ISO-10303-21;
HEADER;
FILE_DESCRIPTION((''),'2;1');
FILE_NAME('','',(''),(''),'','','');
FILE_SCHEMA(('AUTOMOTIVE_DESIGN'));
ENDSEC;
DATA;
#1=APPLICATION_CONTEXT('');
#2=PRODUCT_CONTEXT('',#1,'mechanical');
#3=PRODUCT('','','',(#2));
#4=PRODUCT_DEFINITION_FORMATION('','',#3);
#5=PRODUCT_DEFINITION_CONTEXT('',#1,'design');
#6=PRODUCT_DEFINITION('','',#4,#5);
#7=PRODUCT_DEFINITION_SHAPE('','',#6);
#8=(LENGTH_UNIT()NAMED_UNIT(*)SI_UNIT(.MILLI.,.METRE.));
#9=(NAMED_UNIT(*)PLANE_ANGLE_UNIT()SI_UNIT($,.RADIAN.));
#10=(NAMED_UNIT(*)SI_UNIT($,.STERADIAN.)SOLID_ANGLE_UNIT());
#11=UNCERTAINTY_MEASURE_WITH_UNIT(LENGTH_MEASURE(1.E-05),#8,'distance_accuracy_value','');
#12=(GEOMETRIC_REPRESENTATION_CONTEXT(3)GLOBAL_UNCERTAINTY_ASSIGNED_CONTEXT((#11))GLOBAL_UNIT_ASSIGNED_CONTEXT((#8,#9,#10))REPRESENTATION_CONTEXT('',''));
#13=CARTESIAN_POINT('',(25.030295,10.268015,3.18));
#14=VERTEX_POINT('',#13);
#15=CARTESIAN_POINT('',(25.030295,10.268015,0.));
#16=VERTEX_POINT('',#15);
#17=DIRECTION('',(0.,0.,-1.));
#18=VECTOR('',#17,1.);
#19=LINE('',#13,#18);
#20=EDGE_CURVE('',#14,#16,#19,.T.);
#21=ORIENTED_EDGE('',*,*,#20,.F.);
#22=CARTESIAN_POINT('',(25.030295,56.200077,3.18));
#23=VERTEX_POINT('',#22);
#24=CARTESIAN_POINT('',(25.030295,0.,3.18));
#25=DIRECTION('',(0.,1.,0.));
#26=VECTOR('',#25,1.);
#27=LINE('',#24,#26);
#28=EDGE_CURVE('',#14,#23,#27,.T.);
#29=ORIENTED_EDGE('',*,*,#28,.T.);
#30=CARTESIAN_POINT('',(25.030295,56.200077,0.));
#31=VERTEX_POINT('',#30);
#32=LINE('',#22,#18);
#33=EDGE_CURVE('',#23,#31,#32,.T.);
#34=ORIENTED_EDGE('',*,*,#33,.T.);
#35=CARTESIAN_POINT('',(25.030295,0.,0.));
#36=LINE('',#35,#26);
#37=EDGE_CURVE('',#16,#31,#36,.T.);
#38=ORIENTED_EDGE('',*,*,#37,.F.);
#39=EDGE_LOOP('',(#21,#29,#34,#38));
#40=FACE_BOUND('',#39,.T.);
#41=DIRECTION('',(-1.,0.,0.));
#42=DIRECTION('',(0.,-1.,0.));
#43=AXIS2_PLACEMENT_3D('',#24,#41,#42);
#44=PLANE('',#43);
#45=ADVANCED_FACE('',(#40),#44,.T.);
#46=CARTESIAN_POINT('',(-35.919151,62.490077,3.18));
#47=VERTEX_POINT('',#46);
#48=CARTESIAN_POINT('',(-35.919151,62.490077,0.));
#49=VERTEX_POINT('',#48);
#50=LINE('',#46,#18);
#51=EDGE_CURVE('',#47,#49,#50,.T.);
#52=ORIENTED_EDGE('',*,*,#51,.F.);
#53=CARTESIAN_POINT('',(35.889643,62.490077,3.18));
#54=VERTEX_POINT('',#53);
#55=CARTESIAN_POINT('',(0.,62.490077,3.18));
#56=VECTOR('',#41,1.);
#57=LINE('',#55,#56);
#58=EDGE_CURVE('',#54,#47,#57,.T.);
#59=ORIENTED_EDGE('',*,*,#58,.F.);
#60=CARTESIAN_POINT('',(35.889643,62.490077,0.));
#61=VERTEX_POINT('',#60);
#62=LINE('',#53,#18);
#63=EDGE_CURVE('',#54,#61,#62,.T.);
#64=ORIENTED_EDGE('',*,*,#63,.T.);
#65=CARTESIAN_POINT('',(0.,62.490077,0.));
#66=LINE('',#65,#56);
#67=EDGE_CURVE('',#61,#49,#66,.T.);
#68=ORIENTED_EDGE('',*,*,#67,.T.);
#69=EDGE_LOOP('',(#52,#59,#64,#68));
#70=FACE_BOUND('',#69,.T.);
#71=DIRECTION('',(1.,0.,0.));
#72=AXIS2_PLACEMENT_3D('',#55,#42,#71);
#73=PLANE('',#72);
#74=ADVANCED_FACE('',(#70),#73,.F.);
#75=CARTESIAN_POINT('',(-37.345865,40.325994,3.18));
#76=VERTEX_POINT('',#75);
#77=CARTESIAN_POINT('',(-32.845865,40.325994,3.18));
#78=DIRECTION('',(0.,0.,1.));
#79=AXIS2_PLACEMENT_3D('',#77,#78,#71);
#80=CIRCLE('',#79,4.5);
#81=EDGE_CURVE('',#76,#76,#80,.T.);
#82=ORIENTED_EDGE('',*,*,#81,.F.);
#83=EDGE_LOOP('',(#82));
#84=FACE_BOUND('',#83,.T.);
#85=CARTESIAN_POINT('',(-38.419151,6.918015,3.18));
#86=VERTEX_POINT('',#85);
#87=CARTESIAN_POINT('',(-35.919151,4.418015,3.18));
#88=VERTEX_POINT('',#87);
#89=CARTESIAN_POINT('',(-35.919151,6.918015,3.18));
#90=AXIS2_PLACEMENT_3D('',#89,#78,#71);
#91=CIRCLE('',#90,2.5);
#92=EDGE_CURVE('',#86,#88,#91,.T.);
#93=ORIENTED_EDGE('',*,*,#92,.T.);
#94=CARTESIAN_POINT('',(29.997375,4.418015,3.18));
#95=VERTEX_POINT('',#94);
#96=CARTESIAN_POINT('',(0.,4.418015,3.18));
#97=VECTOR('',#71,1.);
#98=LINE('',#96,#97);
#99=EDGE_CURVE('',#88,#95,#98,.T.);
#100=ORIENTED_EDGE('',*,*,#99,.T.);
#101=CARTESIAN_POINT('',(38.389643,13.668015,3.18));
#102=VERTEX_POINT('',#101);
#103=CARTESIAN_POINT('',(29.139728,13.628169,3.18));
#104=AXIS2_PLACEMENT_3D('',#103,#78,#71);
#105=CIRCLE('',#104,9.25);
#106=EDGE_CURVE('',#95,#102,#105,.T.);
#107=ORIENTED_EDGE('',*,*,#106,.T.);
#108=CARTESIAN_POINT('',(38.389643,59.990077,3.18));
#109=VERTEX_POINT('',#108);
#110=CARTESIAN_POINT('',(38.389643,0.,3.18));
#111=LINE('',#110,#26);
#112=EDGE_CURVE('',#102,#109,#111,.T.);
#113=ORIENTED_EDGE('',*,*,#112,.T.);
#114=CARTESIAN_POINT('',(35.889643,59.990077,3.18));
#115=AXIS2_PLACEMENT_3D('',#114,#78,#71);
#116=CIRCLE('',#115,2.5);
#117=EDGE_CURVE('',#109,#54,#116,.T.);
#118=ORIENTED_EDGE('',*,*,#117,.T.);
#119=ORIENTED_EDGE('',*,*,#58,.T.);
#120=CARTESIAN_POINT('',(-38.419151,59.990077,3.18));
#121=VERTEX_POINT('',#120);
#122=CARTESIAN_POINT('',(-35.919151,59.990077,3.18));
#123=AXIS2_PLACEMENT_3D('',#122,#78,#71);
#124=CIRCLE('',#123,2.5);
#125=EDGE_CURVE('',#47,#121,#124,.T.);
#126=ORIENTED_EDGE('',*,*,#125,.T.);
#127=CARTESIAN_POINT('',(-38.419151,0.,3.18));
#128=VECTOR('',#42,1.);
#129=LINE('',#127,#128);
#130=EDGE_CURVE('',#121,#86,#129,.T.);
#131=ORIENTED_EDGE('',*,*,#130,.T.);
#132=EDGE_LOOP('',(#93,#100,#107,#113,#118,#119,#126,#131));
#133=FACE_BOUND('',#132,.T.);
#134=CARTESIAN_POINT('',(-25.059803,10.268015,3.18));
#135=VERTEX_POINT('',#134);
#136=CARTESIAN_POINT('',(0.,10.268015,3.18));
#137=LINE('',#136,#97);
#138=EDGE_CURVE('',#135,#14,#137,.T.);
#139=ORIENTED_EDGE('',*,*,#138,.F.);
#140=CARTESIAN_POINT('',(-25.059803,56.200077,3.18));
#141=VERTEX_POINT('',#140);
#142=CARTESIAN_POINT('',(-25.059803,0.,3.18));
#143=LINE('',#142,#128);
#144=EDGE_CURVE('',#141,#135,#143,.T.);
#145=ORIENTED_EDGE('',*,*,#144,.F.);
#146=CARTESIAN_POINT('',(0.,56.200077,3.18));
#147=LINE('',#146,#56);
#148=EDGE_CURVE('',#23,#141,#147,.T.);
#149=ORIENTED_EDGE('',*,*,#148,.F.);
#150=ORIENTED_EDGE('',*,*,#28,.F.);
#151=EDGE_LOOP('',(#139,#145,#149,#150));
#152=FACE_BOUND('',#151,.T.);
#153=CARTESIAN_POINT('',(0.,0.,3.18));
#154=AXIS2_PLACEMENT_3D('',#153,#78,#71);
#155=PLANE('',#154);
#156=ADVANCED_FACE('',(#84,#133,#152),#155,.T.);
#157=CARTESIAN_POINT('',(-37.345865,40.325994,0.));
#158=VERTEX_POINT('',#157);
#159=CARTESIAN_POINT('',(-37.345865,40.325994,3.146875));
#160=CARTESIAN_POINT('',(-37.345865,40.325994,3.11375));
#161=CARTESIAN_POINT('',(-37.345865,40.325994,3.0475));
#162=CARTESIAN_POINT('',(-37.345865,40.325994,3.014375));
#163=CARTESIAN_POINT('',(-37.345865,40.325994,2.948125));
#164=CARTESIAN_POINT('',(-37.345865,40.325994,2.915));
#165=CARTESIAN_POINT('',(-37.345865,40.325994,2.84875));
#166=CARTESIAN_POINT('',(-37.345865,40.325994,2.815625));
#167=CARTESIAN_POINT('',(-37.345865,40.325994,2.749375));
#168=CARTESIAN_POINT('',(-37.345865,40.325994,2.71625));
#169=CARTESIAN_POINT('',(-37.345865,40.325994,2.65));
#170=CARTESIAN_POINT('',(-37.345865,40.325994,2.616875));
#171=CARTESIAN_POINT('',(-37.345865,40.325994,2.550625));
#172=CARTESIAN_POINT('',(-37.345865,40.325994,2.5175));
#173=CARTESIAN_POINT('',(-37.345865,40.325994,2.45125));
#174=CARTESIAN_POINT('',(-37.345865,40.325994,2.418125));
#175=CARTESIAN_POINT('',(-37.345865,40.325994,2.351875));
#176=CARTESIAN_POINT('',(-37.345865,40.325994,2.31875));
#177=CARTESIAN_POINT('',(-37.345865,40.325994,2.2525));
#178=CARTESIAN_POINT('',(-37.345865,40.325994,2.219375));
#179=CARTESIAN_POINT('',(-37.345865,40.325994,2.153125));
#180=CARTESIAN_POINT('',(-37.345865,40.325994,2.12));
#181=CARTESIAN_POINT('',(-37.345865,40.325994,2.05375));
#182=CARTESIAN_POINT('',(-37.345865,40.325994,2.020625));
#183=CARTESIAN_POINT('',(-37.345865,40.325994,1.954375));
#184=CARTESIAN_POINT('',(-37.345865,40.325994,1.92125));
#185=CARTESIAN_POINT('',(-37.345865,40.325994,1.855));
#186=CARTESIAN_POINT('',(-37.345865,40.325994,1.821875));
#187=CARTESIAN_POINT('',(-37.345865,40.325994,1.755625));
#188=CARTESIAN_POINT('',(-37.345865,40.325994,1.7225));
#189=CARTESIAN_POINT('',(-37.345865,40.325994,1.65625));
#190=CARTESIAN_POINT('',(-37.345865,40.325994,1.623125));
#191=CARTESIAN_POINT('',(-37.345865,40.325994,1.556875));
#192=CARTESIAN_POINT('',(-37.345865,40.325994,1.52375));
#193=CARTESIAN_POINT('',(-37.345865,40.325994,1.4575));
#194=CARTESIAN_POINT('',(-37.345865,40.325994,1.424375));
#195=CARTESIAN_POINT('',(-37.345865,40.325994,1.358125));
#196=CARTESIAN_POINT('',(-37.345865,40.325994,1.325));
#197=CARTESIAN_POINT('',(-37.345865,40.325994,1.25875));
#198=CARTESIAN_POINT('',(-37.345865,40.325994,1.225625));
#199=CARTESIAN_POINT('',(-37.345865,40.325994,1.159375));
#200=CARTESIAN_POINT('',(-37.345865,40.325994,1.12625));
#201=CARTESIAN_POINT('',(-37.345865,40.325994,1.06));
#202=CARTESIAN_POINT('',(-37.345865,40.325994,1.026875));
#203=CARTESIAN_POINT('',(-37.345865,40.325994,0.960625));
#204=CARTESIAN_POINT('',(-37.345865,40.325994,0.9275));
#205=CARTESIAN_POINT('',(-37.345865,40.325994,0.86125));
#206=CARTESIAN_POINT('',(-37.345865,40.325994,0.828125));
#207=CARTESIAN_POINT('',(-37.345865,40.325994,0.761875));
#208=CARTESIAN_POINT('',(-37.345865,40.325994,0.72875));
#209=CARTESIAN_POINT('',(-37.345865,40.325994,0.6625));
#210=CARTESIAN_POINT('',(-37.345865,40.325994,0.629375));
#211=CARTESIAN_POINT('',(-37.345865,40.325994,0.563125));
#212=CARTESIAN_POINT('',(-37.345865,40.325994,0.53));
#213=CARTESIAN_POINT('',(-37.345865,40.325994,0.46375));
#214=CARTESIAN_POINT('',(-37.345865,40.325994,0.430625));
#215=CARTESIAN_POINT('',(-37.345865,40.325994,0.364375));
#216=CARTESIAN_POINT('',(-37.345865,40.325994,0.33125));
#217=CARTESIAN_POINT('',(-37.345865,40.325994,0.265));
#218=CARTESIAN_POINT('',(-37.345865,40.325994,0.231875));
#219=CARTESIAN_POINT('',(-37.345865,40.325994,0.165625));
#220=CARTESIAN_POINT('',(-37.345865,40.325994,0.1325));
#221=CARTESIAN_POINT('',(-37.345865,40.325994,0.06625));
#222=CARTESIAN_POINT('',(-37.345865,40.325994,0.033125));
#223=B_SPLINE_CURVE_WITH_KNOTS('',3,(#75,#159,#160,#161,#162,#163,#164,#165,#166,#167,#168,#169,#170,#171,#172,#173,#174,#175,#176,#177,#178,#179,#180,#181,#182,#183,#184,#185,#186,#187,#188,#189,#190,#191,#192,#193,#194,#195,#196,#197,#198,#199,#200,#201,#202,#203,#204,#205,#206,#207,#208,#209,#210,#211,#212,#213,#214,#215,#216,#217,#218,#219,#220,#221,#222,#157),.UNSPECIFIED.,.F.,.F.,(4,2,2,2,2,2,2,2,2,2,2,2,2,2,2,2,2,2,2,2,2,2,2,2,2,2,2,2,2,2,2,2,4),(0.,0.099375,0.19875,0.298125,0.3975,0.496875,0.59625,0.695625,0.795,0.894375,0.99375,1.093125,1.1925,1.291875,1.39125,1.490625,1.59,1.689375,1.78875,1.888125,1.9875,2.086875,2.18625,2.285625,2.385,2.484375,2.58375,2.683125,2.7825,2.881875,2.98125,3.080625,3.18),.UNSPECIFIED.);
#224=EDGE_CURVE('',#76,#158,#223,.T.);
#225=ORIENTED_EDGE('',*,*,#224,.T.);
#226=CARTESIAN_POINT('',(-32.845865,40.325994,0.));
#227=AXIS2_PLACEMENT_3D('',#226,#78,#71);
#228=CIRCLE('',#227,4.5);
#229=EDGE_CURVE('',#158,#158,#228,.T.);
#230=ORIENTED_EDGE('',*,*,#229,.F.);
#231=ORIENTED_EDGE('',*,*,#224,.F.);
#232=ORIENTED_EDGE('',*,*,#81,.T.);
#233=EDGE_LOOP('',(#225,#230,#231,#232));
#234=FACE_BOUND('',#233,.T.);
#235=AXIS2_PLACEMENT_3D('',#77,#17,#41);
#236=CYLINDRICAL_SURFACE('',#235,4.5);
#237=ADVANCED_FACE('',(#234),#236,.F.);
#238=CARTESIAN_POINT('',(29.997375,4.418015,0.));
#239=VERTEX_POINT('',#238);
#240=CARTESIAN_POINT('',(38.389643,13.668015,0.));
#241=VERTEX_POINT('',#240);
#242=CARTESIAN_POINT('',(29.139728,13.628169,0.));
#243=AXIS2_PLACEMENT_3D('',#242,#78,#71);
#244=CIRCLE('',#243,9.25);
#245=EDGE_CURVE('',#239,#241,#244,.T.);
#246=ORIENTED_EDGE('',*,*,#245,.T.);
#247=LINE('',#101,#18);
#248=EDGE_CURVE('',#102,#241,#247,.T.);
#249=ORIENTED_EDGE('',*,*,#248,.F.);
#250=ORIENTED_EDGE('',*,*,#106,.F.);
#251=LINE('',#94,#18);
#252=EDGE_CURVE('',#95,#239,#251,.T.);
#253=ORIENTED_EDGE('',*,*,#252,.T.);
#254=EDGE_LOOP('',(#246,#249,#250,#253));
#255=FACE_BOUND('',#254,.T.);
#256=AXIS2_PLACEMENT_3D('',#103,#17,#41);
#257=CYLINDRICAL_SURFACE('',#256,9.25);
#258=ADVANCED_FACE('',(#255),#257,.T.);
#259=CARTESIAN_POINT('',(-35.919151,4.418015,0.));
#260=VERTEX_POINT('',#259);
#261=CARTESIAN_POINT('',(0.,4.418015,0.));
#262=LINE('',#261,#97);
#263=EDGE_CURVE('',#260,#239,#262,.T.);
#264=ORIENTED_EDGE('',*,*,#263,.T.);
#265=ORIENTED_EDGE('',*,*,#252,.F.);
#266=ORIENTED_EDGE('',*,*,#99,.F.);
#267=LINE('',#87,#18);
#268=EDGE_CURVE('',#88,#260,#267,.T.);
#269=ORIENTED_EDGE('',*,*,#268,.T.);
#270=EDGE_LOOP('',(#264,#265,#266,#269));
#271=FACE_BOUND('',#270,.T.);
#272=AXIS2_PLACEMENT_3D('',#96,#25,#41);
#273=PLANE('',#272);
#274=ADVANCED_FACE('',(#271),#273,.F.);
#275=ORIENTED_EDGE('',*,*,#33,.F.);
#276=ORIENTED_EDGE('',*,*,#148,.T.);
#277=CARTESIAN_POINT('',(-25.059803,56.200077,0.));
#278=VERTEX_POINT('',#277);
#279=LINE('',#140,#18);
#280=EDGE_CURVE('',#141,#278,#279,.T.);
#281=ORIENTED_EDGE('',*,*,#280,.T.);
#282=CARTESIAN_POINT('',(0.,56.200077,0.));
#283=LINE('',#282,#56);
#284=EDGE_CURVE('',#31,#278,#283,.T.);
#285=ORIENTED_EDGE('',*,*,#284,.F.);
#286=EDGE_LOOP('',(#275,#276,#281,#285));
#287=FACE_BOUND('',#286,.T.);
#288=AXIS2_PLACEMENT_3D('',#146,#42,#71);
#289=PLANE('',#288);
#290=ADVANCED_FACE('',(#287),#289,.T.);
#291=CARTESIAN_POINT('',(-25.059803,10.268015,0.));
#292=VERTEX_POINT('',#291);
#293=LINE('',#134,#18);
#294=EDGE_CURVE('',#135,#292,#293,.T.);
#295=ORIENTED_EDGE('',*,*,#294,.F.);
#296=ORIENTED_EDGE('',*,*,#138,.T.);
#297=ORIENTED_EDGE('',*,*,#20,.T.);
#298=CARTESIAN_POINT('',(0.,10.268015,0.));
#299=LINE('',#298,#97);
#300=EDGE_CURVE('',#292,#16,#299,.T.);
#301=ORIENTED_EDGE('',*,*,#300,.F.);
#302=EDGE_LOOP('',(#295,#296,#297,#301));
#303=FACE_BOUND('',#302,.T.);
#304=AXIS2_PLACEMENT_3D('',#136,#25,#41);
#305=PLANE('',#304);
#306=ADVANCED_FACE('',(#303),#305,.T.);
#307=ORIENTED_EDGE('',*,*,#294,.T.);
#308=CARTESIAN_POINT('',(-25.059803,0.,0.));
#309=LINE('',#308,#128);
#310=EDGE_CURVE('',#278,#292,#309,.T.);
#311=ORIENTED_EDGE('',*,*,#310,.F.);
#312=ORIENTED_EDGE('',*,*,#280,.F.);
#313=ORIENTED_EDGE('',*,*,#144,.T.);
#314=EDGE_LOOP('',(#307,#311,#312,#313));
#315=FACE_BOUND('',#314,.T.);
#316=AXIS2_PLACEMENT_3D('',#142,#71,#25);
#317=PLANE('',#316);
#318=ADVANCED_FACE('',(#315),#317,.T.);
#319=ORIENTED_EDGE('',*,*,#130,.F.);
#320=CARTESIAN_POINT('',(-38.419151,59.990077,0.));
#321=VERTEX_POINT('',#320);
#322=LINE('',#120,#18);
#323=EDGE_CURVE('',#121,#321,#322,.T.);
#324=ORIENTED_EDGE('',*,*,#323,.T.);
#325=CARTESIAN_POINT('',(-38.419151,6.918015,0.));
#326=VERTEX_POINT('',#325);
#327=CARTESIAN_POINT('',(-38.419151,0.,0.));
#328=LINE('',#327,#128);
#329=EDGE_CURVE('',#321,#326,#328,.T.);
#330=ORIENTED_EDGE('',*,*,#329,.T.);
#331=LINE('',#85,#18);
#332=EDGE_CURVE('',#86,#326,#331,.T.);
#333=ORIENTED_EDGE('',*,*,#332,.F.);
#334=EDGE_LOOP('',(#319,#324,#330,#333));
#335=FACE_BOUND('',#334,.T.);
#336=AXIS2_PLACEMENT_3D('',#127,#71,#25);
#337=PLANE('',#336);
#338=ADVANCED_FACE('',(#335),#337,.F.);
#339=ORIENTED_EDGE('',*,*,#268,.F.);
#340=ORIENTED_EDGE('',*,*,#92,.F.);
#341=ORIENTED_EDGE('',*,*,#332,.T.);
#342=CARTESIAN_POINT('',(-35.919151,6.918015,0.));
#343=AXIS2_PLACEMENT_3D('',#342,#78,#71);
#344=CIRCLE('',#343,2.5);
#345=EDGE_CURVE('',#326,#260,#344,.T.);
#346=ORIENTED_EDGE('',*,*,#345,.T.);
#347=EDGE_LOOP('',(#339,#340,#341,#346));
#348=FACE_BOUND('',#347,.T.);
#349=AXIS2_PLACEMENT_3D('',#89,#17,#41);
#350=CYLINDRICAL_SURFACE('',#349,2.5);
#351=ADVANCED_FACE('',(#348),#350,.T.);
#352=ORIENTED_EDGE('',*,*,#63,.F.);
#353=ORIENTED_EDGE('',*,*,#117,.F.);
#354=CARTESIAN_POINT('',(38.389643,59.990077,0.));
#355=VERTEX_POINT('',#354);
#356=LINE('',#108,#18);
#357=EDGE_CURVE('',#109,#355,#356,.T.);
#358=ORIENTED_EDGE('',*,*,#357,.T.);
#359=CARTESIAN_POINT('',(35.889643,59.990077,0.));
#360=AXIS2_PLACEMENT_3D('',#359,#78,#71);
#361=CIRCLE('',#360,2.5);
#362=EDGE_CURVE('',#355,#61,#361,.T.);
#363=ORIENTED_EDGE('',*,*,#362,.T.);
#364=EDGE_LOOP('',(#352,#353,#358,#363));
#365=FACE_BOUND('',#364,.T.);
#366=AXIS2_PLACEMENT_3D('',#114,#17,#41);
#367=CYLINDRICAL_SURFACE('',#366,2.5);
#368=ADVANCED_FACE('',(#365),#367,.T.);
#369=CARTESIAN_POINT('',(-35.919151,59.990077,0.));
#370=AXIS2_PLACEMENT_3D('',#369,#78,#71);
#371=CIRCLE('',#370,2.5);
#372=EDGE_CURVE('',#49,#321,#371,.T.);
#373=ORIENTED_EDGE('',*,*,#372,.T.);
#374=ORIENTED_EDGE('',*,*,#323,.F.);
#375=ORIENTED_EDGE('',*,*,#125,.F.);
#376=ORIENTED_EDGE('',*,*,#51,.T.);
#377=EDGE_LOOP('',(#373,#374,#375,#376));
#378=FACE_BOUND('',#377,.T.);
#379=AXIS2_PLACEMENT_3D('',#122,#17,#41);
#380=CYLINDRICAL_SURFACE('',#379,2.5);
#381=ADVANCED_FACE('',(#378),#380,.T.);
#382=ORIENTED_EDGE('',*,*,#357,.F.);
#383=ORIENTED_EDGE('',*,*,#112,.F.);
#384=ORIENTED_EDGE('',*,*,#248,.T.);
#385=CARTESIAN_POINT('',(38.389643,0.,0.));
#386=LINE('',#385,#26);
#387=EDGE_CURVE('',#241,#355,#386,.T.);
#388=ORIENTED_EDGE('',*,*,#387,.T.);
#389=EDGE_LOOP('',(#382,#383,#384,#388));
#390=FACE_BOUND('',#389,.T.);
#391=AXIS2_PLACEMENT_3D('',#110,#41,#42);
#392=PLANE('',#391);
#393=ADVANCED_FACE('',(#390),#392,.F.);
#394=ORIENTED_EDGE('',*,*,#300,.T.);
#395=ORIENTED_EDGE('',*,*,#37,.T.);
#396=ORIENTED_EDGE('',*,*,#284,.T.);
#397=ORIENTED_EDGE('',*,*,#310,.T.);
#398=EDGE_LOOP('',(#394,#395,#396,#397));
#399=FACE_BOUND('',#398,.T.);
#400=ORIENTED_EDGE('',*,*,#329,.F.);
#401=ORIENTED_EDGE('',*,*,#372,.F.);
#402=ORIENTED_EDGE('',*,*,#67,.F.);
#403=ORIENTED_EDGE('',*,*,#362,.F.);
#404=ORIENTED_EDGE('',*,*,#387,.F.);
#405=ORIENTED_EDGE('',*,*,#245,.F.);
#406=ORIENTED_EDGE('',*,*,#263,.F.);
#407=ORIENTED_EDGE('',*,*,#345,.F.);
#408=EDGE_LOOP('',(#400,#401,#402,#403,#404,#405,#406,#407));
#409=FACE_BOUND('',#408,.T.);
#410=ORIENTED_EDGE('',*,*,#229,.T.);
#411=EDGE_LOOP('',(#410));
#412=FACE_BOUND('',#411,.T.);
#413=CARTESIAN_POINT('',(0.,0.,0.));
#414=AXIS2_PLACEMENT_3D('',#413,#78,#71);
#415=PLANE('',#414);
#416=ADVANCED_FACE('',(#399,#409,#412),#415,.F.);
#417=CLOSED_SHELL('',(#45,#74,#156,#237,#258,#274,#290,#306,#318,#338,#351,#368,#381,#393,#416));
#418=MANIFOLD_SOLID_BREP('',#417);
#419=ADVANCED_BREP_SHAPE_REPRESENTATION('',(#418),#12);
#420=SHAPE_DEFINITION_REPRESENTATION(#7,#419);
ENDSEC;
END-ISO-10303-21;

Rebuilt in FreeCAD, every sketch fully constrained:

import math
import FreeCAD as App
import Part
import Sketcher
from FreeCAD import Vector
Q = App.Units.Quantity

doc = App.newDocument("Part")
body = doc.addObject("PartDesign::Body", "Body")

# Sketch on XY plane
sketch1 = doc.addObject("Sketcher::SketchObject", "Sketch")
body.addObject(sketch1)
sketch1.AttachmentSupport = (doc.XY_Plane, [""])
sketch1.MapMode = "FlatFace"
sketch1.addGeometry(Part.LineSegment(Vector(-35.9, 4.4, 0), Vector(30, 4.4, 0)), False)
sketch1.addGeometry(Part.ArcOfCircle(Part.Circle(Vector(29.1, 13.6, 0), Vector(0, 0, 1), 9.2), math.radians(-85), math.radians(0)), False)
sketch1.addGeometry(Part.LineSegment(Vector(38.4, 13.7, 0), Vector(38.4, 60, 0)), False)
sketch1.addGeometry(Part.ArcOfCircle(Part.Circle(Vector(35.9, 60, 0), Vector(0, 0, 1), 2.5), math.radians(0), math.radians(90)), False)
sketch1.addGeometry(Part.LineSegment(Vector(35.9, 62.5, 0), Vector(-35.9, 62.5, 0)), False)
sketch1.addGeometry(Part.ArcOfCircle(Part.Circle(Vector(-35.9, 60, 0), Vector(0, 0, 1), 2.5), math.radians(90), math.radians(180)), False)
sketch1.addGeometry(Part.LineSegment(Vector(-38.4, 60, 0), Vector(-38.4, 6.9, 0)), False)
sketch1.addGeometry(Part.ArcOfCircle(Part.Circle(Vector(-35.9, 6.9, 0), Vector(0, 0, 1), 2.5), math.radians(180), math.radians(270)), False)
sketch1.addGeometry(Part.Circle(Vector(-32.8, 40.3, 0), Vector(0, 0, 1), 4.5), False)
sketch1.addGeometry(Part.LineSegment(Vector(25, 10.3, 0), Vector(-25.1, 10.3, 0)), False)
sketch1.addGeometry(Part.LineSegment(Vector(-25.1, 10.3, 0), Vector(-25.1, 56.2, 0)), False)
sketch1.addGeometry(Part.LineSegment(Vector(-25.1, 56.2, 0), Vector(25, 56.2, 0)), False)
sketch1.addGeometry(Part.LineSegment(Vector(25, 56.2, 0), Vector(25, 10.3, 0)), False)
sketch1.addConstraint(Sketcher.Constraint("Coincident", 0, 2, 1, 1))
sketch1.addConstraint(Sketcher.Constraint("Coincident", 1, 2, 2, 1))
sketch1.addConstraint(Sketcher.Constraint("Tangent", 2, 2, 3, 1))
sketch1.addConstraint(Sketcher.Constraint("Tangent", 3, 2, 4, 1))
sketch1.addConstraint(Sketcher.Constraint("Tangent", 4, 2, 5, 1))
sketch1.addConstraint(Sketcher.Constraint("Tangent", 5, 2, 6, 1))
sketch1.addConstraint(Sketcher.Constraint("Tangent", 6, 2, 7, 1))
sketch1.addConstraint(Sketcher.Constraint("Tangent", 7, 2, 0, 1))
sketch1.addConstraint(Sketcher.Constraint("Coincident", 9, 2, 10, 1))
sketch1.addConstraint(Sketcher.Constraint("Coincident", 10, 2, 11, 1))
sketch1.addConstraint(Sketcher.Constraint("Coincident", 11, 2, 12, 1))
sketch1.addConstraint(Sketcher.Constraint("Coincident", 12, 2, 9, 1))
sketch1.addConstraint(Sketcher.Constraint("Horizontal", 0))
sketch1.addConstraint(Sketcher.Constraint("Vertical", 2))
sketch1.addConstraint(Sketcher.Constraint("Horizontal", 4))
sketch1.addConstraint(Sketcher.Constraint("Vertical", 6))
sketch1.addConstraint(Sketcher.Constraint("Horizontal", 9))
sketch1.addConstraint(Sketcher.Constraint("Vertical", 10))
sketch1.addConstraint(Sketcher.Constraint("Horizontal", 11))
sketch1.addConstraint(Sketcher.Constraint("Vertical", 12))
sketch1.addConstraint(Sketcher.Constraint("Equal", 3, 5))
sketch1.addConstraint(Sketcher.Constraint("Equal", 5, 7))
sketch1.addConstraint(Sketcher.Constraint("Diameter", 8, Q("9 mm")))
sketch1.addConstraint(Sketcher.Constraint("Radius", 3, Q("2.5 mm")))
sketch1.addConstraint(Sketcher.Constraint("Radius", 1, Q("9.25 mm")))
sketch1.addConstraint(Sketcher.Constraint("DistanceY", 12, 2, 1, 2, Q("3.4 mm")))
sketch1.addConstraint(Sketcher.Constraint("DistanceY", 0, 2, 1, 2, Q("9.25 mm")))
sketch1.addConstraint(Sketcher.Constraint("DistanceY", 10, 2, 5, 3, Q("3.79 mm")))
sketch1.addConstraint(Sketcher.Constraint("DistanceX", 9, 2, 9, 1, Q("50.090098 mm")))
sketch1.addConstraint(Sketcher.Constraint("DistanceX", 0, 1, 0, 2, Q("65.916526 mm")))
sketch1.addConstraint(Sketcher.Constraint("DistanceX", 4, 2, 4, 1, Q("71.808794 mm")))
sketch1.addConstraint(Sketcher.Constraint("DistanceY", 2, 1, 2, 2, Q("46.322063 mm")))
sketch1.addConstraint(Sketcher.Constraint("DistanceX", -1, 1, 1, 3, Q("29.139728 mm")))
sketch1.addConstraint(Sketcher.Constraint("DistanceY", -1, 1, 1, 3, Q("13.628169 mm")))
sketch1.addConstraint(Sketcher.Constraint("DistanceY", 7, 3, 8, 3, Q("33.407979 mm")))
sketch1.addConstraint(Sketcher.Constraint("DistanceX", 8, 3, 3, 3, Q("68.735508 mm")))
sketch1.addConstraint(Sketcher.Constraint("DistanceX", 12, 2, 0, 2, Q("4.96708 mm")))
pad1 = doc.addObject("PartDesign::Pad", "Pad")
body.addObject(pad1)
pad1.Profile = sketch1
pad1.Length = 3.18

doc.recompute()
